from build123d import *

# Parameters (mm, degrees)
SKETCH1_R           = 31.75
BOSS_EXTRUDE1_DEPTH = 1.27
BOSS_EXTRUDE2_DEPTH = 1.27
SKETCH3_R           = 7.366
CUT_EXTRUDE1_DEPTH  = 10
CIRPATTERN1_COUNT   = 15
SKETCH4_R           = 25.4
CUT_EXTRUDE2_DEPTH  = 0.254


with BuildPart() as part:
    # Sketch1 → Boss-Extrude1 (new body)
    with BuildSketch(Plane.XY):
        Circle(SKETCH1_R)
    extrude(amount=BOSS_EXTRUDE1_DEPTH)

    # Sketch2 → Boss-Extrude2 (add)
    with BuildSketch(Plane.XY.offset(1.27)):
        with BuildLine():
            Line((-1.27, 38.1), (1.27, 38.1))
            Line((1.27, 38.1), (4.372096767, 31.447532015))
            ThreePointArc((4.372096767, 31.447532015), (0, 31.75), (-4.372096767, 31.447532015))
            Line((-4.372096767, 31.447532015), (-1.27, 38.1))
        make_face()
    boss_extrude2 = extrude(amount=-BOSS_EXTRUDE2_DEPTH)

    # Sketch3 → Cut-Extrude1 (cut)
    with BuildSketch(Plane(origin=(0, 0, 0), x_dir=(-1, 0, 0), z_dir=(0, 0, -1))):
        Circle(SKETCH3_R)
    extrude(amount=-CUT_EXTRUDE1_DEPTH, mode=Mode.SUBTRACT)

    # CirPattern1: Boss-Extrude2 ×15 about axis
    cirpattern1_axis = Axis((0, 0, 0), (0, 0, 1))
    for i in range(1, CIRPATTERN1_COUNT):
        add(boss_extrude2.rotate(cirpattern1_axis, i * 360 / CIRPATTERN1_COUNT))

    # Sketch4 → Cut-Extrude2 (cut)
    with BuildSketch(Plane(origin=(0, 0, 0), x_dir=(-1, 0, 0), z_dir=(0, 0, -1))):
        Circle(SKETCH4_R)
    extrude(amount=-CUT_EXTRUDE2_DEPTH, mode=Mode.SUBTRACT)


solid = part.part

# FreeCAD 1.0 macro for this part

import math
import FreeCAD as App
import Part
import Sketcher
Q = App.Units.Quantity

doc = App.newDocument("Part")
body = doc.addObject("PartDesign::Body", "Body")

sketch1 = body.newObject("Sketcher::SketchObject", "Sketch")
sketch1.AttachmentSupport = (doc.getObject("XY_Plane"), [""])
sketch1.MapMode = "FlatFace"
sketch1.addGeometry(Part.Circle(App.Vector(0, 0, 0), App.Vector(0, 0, 1), 31.75), False)
sketch1.addConstraint(Sketcher.Constraint("Coincident", 0, 3, -1, 1))
sketch1.addConstraint(Sketcher.Constraint("Diameter", 0, Q("2.5 in")))
pad1 = body.newObject("PartDesign::Pad", "Pad")
pad1.Profile = sketch1
pad1.Length = Q("0.05 in")

sketch2 = body.newObject("Sketcher::SketchObject", "Sketch001")
sketch2.AttachmentSupport = (doc.getObject("XY_Plane"), [""])
sketch2.MapMode = "FlatFace"
sketch2.AttachmentOffset = App.Placement(App.Vector(0, 0, 0.05 * 25.4), App.Rotation())
sketch2.addGeometry(Part.LineSegment(App.Vector(1.27, 38.1, 0), App.Vector(-1.27, 38.1, 0)), False)
sketch2.addGeometry(Part.LineSegment(App.Vector(-1.27, 38.1, 0), App.Vector(-4.372097, 31.447532, 0)), False)
sketch2.addGeometry(Part.ArcOfCircle(Part.Circle(App.Vector(0, 0, 0), App.Vector(0, 0, 1), 31.75), math.radians(82.085001), math.radians(97.914999)), False)
sketch2.addGeometry(Part.LineSegment(App.Vector(4.372097, 31.447532, 0), App.Vector(1.27, 38.1, 0)), False)
sketch2.addConstraint(Sketcher.Constraint("Coincident", 0, 2, 1, 1))
sketch2.addConstraint(Sketcher.Constraint("Coincident", 1, 2, 2, 2))
sketch2.addConstraint(Sketcher.Constraint("Coincident", 2, 1, 3, 1))
sketch2.addConstraint(Sketcher.Constraint("Coincident", 3, 2, 0, 1))
sketch2.addConstraint(Sketcher.Constraint("Horizontal", 0))
sketch2.addConstraint(Sketcher.Constraint("Coincident", 2, 3, -1, 1))
sketch2.addConstraint(Sketcher.Constraint("Horizontal", 1, 2, 2, 1))
sketch2.addConstraint(Sketcher.Constraint("Equal", 1, 3))
sketch2.addConstraint(Sketcher.Constraint("Radius", 2, Q("1.25 in")))
sketch2.addConstraint(Sketcher.Constraint("DistanceX", 0, 2, 0, 1, Q("0.1 in")))
sketch2.addConstraint(Sketcher.Constraint("Angle", 1, Q("-115 deg")))
sketch2.addConstraint(Sketcher.Constraint("DistanceY", -1, 1, 0, 2, Q("1.5 in")))
pad2 = body.newObject("PartDesign::Pad", "Pad001")
pad2.Profile = sketch2
pad2.Length = Q("0.05 in")
pad2.Reversed = True

sketch3 = body.newObject("Sketcher::SketchObject", "Sketch002")
sketch3.AttachmentSupport = (doc.getObject("XY_Plane"), [""])
sketch3.MapMode = "FlatFace"
sketch3.addGeometry(Part.Circle(App.Vector(0, 0, 0), App.Vector(0, 0, 1), 7.366), False)
sketch3.addConstraint(Sketcher.Constraint("Coincident", 0, 3, -1, 1))
sketch3.addConstraint(Sketcher.Constraint("Diameter", 0, Q("0.58 in")))
pocket1 = body.newObject("PartDesign::Pocket", "Pocket")
pocket1.Profile = sketch3
pocket1.Length = 10
pocket1.Reversed = True
doc.recompute()

polarpattern = body.newObject("PartDesign::PolarPattern", "PolarPattern")
polarpattern.Originals = [pad2]
polarpattern.Axis = (doc.getObject("Z_Axis"), [""])
polarpattern.Angle = 360
polarpattern.Occurrences = 15
body.Tip = polarpattern

sketch4 = body.newObject("Sketcher::SketchObject", "Sketch003")
sketch4.AttachmentSupport = (doc.getObject("XY_Plane"), [""])
sketch4.MapMode = "FlatFace"
sketch4.addGeometry(Part.Circle(App.Vector(0, 0, 0), App.Vector(0, 0, 1), 25.4), False)
sketch4.addConstraint(Sketcher.Constraint("Coincident", 0, 3, -1, 1))
sketch4.addConstraint(Sketcher.Constraint("Diameter", 0, Q("2 in")))
pocket2 = body.newObject("PartDesign::Pocket", "Pocket001")
pocket2.Profile = sketch4
pocket2.Length = Q("0.01 in")
pocket2.Reversed = True

doc.recompute()
